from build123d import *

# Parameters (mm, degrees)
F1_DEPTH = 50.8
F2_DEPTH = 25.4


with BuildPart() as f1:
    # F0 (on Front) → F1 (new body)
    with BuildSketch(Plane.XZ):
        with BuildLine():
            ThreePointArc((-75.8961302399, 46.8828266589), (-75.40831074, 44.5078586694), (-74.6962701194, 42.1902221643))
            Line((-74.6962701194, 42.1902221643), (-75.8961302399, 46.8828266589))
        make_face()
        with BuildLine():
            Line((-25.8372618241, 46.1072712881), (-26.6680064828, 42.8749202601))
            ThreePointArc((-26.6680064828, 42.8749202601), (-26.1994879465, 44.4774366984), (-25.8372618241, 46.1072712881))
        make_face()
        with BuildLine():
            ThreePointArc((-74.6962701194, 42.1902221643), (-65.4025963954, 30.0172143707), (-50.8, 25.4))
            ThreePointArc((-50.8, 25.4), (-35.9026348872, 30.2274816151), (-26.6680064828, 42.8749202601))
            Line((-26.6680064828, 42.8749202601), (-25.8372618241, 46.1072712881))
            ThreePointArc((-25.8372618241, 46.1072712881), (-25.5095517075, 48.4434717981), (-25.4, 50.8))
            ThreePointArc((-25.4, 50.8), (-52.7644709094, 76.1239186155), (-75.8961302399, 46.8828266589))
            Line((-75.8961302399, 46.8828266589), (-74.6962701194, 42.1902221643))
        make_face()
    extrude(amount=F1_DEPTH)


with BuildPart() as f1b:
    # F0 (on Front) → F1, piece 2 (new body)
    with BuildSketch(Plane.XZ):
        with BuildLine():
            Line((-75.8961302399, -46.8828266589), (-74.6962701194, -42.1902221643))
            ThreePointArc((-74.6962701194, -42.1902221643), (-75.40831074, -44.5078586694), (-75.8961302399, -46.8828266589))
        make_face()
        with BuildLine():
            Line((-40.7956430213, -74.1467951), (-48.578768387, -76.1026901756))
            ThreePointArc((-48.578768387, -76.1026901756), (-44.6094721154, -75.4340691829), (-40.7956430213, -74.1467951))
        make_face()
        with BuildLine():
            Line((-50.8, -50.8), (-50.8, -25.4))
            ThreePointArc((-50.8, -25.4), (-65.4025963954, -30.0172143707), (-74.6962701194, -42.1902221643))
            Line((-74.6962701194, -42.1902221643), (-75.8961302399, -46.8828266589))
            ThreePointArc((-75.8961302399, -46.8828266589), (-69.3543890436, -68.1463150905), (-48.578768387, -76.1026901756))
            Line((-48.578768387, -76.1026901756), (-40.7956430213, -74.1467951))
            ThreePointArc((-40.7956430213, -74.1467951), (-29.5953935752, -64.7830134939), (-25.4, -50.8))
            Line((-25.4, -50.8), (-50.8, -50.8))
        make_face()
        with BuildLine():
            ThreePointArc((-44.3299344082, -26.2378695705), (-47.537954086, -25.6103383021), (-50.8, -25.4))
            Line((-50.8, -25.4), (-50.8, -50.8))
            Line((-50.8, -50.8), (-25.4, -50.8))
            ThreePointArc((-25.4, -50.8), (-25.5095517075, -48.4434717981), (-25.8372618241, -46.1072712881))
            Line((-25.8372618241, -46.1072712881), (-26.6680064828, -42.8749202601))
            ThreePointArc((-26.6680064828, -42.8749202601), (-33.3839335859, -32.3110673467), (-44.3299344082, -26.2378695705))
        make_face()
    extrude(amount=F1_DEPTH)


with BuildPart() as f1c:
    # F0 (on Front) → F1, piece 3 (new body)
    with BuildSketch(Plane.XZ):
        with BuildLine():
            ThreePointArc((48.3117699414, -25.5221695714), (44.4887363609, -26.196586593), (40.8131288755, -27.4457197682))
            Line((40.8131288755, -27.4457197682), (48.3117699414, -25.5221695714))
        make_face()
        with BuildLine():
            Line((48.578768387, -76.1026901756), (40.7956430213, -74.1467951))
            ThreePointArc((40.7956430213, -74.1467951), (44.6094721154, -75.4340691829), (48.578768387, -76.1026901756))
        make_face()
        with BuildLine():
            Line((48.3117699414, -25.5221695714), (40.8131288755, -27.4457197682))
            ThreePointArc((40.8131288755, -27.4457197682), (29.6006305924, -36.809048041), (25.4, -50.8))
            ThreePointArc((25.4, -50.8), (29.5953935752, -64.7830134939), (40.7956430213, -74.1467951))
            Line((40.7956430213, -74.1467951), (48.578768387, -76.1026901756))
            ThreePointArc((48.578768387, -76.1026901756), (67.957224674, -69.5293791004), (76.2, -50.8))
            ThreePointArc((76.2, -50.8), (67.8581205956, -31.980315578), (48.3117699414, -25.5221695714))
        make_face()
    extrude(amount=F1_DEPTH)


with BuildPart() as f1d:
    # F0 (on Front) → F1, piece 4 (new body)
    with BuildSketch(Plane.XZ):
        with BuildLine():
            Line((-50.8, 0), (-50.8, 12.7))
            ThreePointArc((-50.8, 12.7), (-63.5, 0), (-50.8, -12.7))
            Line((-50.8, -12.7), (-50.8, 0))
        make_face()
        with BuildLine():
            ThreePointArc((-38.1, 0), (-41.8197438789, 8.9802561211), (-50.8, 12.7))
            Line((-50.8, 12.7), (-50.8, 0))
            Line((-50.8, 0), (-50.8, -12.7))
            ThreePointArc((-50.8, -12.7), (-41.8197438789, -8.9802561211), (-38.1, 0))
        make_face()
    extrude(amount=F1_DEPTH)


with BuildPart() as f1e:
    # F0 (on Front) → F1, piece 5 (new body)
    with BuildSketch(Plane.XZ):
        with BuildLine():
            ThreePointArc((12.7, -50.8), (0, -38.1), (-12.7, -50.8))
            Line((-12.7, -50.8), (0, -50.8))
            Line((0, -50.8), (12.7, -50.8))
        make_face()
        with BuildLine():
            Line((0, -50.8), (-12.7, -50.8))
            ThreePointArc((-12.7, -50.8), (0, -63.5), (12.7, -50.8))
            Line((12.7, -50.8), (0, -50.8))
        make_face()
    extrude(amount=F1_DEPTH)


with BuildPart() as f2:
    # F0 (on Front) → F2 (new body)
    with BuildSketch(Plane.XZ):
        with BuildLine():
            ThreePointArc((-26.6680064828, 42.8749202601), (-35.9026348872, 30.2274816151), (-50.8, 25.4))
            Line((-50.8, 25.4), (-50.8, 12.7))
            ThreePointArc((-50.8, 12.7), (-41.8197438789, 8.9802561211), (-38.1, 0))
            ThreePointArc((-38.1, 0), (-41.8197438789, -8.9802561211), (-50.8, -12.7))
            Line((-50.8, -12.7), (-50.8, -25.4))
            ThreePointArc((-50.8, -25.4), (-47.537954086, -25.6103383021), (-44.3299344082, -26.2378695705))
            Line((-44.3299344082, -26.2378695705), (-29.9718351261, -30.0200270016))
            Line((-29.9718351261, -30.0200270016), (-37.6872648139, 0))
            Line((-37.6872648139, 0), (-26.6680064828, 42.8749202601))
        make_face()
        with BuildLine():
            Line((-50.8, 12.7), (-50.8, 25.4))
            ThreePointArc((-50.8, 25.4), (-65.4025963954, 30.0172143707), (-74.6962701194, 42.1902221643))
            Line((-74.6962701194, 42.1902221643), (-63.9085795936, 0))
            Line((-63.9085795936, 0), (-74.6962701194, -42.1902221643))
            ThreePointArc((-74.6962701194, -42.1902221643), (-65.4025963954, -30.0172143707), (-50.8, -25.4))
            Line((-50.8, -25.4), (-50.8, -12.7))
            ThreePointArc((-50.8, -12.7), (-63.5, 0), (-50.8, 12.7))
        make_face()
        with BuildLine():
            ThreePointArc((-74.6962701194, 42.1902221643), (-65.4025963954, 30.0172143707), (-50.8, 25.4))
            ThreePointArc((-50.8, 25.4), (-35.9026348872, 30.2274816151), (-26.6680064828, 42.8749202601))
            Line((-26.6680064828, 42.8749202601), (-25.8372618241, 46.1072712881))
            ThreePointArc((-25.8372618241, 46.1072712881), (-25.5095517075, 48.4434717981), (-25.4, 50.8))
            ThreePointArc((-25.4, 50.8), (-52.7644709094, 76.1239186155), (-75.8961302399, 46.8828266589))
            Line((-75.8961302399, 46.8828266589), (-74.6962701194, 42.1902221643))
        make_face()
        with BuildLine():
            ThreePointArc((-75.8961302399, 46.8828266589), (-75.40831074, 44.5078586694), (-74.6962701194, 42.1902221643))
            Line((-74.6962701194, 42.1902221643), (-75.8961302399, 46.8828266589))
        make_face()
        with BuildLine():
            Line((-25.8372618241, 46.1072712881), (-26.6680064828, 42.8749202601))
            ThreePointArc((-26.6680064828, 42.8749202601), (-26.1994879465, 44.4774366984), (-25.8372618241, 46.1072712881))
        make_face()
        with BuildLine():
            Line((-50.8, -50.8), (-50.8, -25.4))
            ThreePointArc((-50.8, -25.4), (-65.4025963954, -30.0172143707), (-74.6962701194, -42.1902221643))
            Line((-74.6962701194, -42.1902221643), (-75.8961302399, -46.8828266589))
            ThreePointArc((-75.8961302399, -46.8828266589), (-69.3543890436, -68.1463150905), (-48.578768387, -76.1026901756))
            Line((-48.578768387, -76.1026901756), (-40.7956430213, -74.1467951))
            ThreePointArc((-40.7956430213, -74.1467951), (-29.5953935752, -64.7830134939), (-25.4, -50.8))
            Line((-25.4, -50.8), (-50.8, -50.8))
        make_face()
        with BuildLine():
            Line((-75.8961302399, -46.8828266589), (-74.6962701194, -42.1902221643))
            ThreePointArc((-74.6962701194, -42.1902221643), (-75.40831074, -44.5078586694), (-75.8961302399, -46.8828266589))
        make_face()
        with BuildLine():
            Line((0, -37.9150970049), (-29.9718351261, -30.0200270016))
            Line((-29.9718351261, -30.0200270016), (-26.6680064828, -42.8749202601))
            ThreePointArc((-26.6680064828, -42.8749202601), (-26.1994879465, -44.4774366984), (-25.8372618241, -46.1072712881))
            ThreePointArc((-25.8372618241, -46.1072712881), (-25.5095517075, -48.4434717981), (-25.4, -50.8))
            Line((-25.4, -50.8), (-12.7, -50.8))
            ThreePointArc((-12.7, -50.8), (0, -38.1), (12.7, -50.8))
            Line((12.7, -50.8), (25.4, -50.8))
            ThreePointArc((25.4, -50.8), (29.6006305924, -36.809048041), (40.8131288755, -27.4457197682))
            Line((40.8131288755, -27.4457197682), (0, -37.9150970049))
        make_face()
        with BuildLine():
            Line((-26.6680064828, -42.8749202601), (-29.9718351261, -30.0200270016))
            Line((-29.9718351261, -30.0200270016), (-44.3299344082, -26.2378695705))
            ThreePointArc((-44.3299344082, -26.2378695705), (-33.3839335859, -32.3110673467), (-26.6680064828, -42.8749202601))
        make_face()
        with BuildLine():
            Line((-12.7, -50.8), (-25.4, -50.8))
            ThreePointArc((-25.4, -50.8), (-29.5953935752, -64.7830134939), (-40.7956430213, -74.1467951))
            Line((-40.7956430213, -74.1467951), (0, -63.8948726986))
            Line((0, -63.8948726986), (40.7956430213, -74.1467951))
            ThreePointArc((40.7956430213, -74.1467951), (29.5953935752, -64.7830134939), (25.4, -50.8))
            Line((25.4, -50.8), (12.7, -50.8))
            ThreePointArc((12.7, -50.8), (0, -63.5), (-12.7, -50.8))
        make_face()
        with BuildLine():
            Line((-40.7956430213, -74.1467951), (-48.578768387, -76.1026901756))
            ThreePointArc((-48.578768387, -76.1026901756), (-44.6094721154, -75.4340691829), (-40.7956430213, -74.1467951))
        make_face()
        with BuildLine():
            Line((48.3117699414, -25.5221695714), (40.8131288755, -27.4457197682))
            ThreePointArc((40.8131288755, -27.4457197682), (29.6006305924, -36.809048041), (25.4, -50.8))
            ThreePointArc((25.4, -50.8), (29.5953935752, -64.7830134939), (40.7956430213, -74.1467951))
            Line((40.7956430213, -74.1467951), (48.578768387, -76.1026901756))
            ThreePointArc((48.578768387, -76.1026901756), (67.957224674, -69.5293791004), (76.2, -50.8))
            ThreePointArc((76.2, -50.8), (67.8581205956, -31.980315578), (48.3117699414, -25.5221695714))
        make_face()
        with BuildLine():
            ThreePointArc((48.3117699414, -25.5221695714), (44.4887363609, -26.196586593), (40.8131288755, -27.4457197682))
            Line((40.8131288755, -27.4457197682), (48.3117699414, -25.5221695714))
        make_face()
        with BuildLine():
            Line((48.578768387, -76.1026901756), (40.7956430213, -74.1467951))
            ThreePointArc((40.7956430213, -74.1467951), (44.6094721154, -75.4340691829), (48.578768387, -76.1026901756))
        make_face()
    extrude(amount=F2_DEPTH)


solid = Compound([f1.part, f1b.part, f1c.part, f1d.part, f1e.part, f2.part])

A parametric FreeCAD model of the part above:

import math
import FreeCAD as App
import Part
import Sketcher
Q = App.Units.Quantity

doc = App.newDocument("Part")
params = doc.addObject("Spreadsheet::Sheet", "Params")
for row, (alias, value) in enumerate([
    ("sketch1_radius", "1 in"),
    ("pad1_length", "2 in"),
    ("sketch2_radius", "1 in"),
    ("pad2_length", "2 in"),
    ("sketch3_radius", "1 in"),
    ("pad3_length", "2 in"),
    ("sketch4_radius", "0.5 in"),
    ("pad4_length", "2 in"),
    ("sketch5_diameter", "1 in"),
    ("pad5_length", "2 in"),
    ("sketch6_diameter", "1 in"),
    ("sketch6_radius", "1 in"),
    ("pad6_length", "1 in"),
], start=1):
    params.set(f"A{row}", alias)
    params.set(f"B{row}", "=" + value)
    params.setAlias(f"B{row}", alias)

body = doc.addObject("PartDesign::Body", "Body")

# Sketch on XZ plane
sketch1 = body.newObject("Sketcher::SketchObject", "Sketch")
sketch1.AttachmentSupport = (doc.getObject("XZ_Plane"), [""])
sketch1.MapMode = "FlatFace"
sketch1.addGeometry(Part.ArcOfCircle(Part.Circle(App.Vector(-50.8, 50.8, 0), App.Vector(0, 0, 1), 25.4), math.radians(-171.13), math.radians(-160.19)), False)
sketch1.addGeometry(Part.ArcOfCircle(Part.Circle(App.Vector(-50.8, 50.8, 0), App.Vector(0, 0, 1), 25.4), math.radians(-160), math.radians(-90)), False)
sketch1.addGeometry(Part.ArcOfCircle(Part.Circle(App.Vector(-50.8, 50.8, 0), App.Vector(0, 0, 1), 25.4), math.radians(-90), math.radians(-18)), False)
sketch1.addGeometry(Part.ArcOfCircle(Part.Circle(App.Vector(-50.8, 50.8, 0), App.Vector(0, 0, 1), 25.4), math.radians(-18.18), math.radians(-10.65)), False)
sketch1.addGeometry(Part.ArcOfCircle(Part.Circle(App.Vector(-50.8, 50.8, 0), App.Vector(0, 0, 1), 25.4), math.radians(-10.65), math.radians(0)), False)
sketch1.addGeometry(Part.ArcOfCircle(Part.Circle(App.Vector(-50.8, 50.8, 0), App.Vector(0, 0, 1), 25.4), math.radians(0), math.radians(189)), False)
sketch1.addConstraint(Sketcher.Constraint("Tangent", 0, 2, 1, 1))
sketch1.addConstraint(Sketcher.Constraint("Tangent", 1, 2, 2, 1))
sketch1.addConstraint(Sketcher.Constraint("Tangent", 2, 2, 3, 1))
sketch1.addConstraint(Sketcher.Constraint("Tangent", 3, 2, 4, 1))
sketch1.addConstraint(Sketcher.Constraint("Tangent", 4, 2, 5, 1))
sketch1.addConstraint(Sketcher.Constraint("Tangent", 5, 2, 0, 1))
sketch1.addConstraint(Sketcher.Constraint("Coincident", 2, 3, 0, 3))
sketch1.addConstraint(Sketcher.Constraint("Equal", 2, 3))
sketch1.addConstraint(Sketcher.Constraint("Horizontal", 5, 3, 4, 2))
sketch1.addConstraint(Sketcher.Constraint("Vertical", 5, 3, 1, 2))
sketch1.addConstraint(Sketcher.Constraint("Radius", 0, Q("1 in")))
sketch1.addConstraint(Sketcher.Constraint("DistanceX", 0, 3, -1, 1, Q("2 in")))
sketch1.addConstraint(Sketcher.Constraint("DistanceY", -1, 1, 0, 3, Q("2 in")))
sketch1.addConstraint(Sketcher.Constraint("DistanceX", 0, 2, -1, 1, Q("74.69627 mm")))
sketch1.addConstraint(Sketcher.Constraint("DistanceY", -1, 1, 2, 2, Q("42.87492 mm")))
sketch1.addConstraint(Sketcher.Constraint("DistanceX", 3, 2, -1, 1, Q("25.837262 mm")))
sketch1.addConstraint(Sketcher.Constraint("DistanceX", 5, 2, -1, 1, Q("75.89613 mm")))
sketch1.setExpression("Constraints[10]", "Params.sketch1_radius")
pad1 = body.newObject("PartDesign::Pad", "Pad")
pad1.Profile = sketch1
pad1.setExpression("Length", "Params.pad1_length")
body2 = doc.addObject("PartDesign::Body", "Body001")

# Sketch on XZ plane
sketch2 = body2.newObject("Sketcher::SketchObject", "Sketch001")
sketch2.AttachmentSupport = (doc.getObject("XZ_Plane001"), [""])
sketch2.MapMode = "FlatFace"
sketch2.addGeometry(Part.ArcOfCircle(Part.Circle(App.Vector(-50.8, -50.8, 0), App.Vector(0, 0, 1), 25.4), math.radians(160.19), math.radians(171.13)), False)
sketch2.addGeometry(Part.ArcOfCircle(Part.Circle(App.Vector(-50.8, -50.8, 0), App.Vector(0, 0, 1), 25.4), math.radians(171), math.radians(275)), False)
sketch2.addGeometry(Part.ArcOfCircle(Part.Circle(App.Vector(-50.8, -50.8, 0), App.Vector(0, 0, 1), 25.4), math.radians(-84.98), math.radians(-66.8)), False)
sketch2.addGeometry(Part.ArcOfCircle(Part.Circle(App.Vector(-50.8, -50.8, 0), App.Vector(0, 0, 1), 25.4), math.radians(-67), math.radians(0)), False)
sketch2.addGeometry(Part.ArcOfCircle(Part.Circle(App.Vector(-50.8, -50.8, 0), App.Vector(0, 0, 1), 25.4), math.radians(0), math.radians(10.65)), False)
sketch2.addGeometry(Part.LineSegment(App.Vector(-25.8, -46.1, 0), App.Vector(-26.7, -42.9, 0)), False)
sketch2.addGeometry(Part.ArcOfCircle(Part.Circle(App.Vector(-50.8, -50.8, 0), App.Vector(0, 0, 1), 25.4), math.radians(18), math.radians(75)), False)
sketch2.addGeometry(Part.ArcOfCircle(Part.Circle(App.Vector(-50.8, -50.8, 0), App.Vector(0, 0, 1), 25.4), math.radians(75.24), math.radians(90)), False)
sketch2.addGeometry(Part.ArcOfCircle(Part.Circle(App.Vector(-50.8, -50.8, 0), App.Vector(0, 0, 1), 25.4), math.radians(90), math.radians(160)), False)
sketch2.addConstraint(Sketcher.Constraint("Tangent", 0, 2, 1, 1))
sketch2.addConstraint(Sketcher.Constraint("Tangent", 1, 2, 2, 1))
sketch2.addConstraint(Sketcher.Constraint("Tangent", 2, 2, 3, 1))
sketch2.addConstraint(Sketcher.Constraint("Tangent", 3, 2, 4, 1))
sketch2.addConstraint(Sketcher.Constraint("Coincident", 4, 2, 5, 1))
sketch2.addConstraint(Sketcher.Constraint("Coincident", 5, 2, 6, 1))
sketch2.addConstraint(Sketcher.Constraint("Tangent", 6, 2, 7, 1))
sketch2.addConstraint(Sketcher.Constraint("Tangent", 7, 2, 8, 1))
sketch2.addConstraint(Sketcher.Constraint("Tangent", 8, 2, 0, 1))
sketch2.addConstraint(Sketcher.Constraint("Coincident", 2, 3, 0, 3))
sketch2.addConstraint(Sketcher.Constraint("Coincident", 4, 3, 0, 3))
sketch2.addConstraint(Sketcher.Constraint("Coincident", 6, 3, 0, 3))
sketch2.addConstraint(Sketcher.Constraint("Equal", 4, 6))
sketch2.addConstraint(Sketcher.Constraint("Horizontal", 8, 3, 3, 2))
sketch2.addConstraint(Sketcher.Constraint("Vertical", 8, 3, 7, 2))
sketch2.addConstraint(Sketcher.Constraint("Radius", 0, Q("1 in")))
sketch2.addConstraint(Sketcher.Constraint("DistanceX", 0, 3, -1, 1, Q("2 in")))
sketch2.addConstraint(Sketcher.Constraint("DistanceY", 0, 3, -1, 1, Q("2 in")))
sketch2.addConstraint(Sketcher.Constraint("Distance", 5, Q("3.337399 mm")))
sketch2.addConstraint(Sketcher.Constraint("DistanceX", 0, 2, -1, 1, Q("75.89613 mm")))
sketch2.addConstraint(Sketcher.Constraint("DistanceX", 1, 2, -1, 1, Q("48.578768 mm")))
sketch2.addConstraint(Sketcher.Constraint("DistanceX", 4, 2, -1, 1, Q("25.837262 mm")))
sketch2.addConstraint(Sketcher.Constraint("DistanceY", 6, 2, -1, 1, Q("26.23787 mm")))
sketch2.addConstraint(Sketcher.Constraint("DistanceX", 8, 2, -1, 1, Q("74.69627 mm")))
sketch2.addConstraint(Sketcher.Constraint("DistanceX", 2, 2, -1, 1, Q("40.795643 mm")))
sketch2.setExpression("Constraints[15]", "Params.sketch2_radius")
pad2 = body2.newObject("PartDesign::Pad", "Pad001")
pad2.Profile = sketch2
pad2.setExpression("Length", "Params.pad2_length")
body3 = doc.addObject("PartDesign::Body", "Body002")

# Sketch on XZ plane
sketch3 = body3.newObject("Sketcher::SketchObject", "Sketch002")
sketch3.AttachmentSupport = (doc.getObject("XZ_Plane002"), [""])
sketch3.MapMode = "FlatFace"
sketch3.addGeometry(Part.ArcOfCircle(Part.Circle(App.Vector(51, -51, 0), App.Vector(0, 0, 1), 25), math.radians(95.62), math.radians(113.15)), False)
sketch3.addGeometry(Part.ArcOfCircle(Part.Circle(App.Vector(51, -51, 0), App.Vector(0, 0, 1), 25), math.radians(113), math.radians(247)), False)
sketch3.addGeometry(Part.ArcOfCircle(Part.Circle(App.Vector(51, -51, 0), App.Vector(0, 0, 1), 25), math.radians(-113.2), math.radians(-95.02)), False)
sketch3.addGeometry(Part.ArcOfCircle(Part.Circle(App.Vector(51, -51, 0), App.Vector(0, 0, 1), 25), math.radians(-95), math.radians(0)), False)
sketch3.addGeometry(Part.ArcOfCircle(Part.Circle(App.Vector(51, -51, 0), App.Vector(0, 0, 1), 25), math.radians(0), math.radians(96)), False)
sketch3.addConstraint(Sketcher.Constraint("Tangent", 0, 2, 1, 1))
sketch3.addConstraint(Sketcher.Constraint("Tangent", 1, 2, 2, 1))
sketch3.addConstraint(Sketcher.Constraint("Tangent", 2, 2, 3, 1))
sketch3.addConstraint(Sketcher.Constraint("Tangent", 3, 2, 4, 1))
sketch3.addConstraint(Sketcher.Constraint("Tangent", 4, 2, 0, 1))
sketch3.addConstraint(Sketcher.Constraint("Coincident", 2, 3, 0, 3))
sketch3.addConstraint(Sketcher.Constraint("Horizontal", 4, 3, 3, 2))
sketch3.addConstraint(Sketcher.Constraint("Radius", 0, Q("1 in")))
sketch3.addConstraint(Sketcher.Constraint("DistanceX", -1, 1, 0, 3, Q("2 in")))
sketch3.addConstraint(Sketcher.Constraint("DistanceY", 0, 3, -1, 1, Q("2 in")))
sketch3.addConstraint(Sketcher.Constraint("DistanceX", -1, 1, 0, 2, Q("40.813129 mm")))
sketch3.addConstraint(Sketcher.Constraint("DistanceX", -1, 1, 2, 2, Q("48.578768 mm")))
sketch3.addConstraint(Sketcher.Constraint("DistanceX", -1, 1, 4, 2, Q("48.31177 mm")))
sketch3.addConstraint(Sketcher.Constraint("DistanceX", -1, 1, 1, 2, Q("40.795643 mm")))
sketch3.setExpression("Constraints[7]", "Params.sketch3_radius")
pad3 = body3.newObject("PartDesign::Pad", "Pad002")
pad3.Profile = sketch3
pad3.setExpression("Length", "Params.pad3_length")
body4 = doc.addObject("PartDesign::Body", "Body003")

# Sketch on XZ plane
sketch4 = body4.newObject("Sketcher::SketchObject", "Sketch003")
sketch4.AttachmentSupport = (doc.getObject("XZ_Plane003"), [""])
sketch4.MapMode = "FlatFace"
sketch4.addGeometry(Part.ArcOfCircle(Part.Circle(App.Vector(-51, 0, 0), App.Vector(0, 0, 1), 13), math.radians(90), math.radians(270)), False)
sketch4.addGeometry(Part.ArcOfCircle(Part.Circle(App.Vector(-51, 0, 0), App.Vector(0, 0, 1), 13), math.radians(-90), math.radians(0)), False)
sketch4.addGeometry(Part.ArcOfCircle(Part.Circle(App.Vector(-51, 0, 0), App.Vector(0, 0, 1), 13), math.radians(0), math.radians(90)), False)
sketch4.addConstraint(Sketcher.Constraint("Tangent", 0, 2, 1, 1))
sketch4.addConstraint(Sketcher.Constraint("Tangent", 1, 2, 2, 1))
sketch4.addConstraint(Sketcher.Constraint("Tangent", 2, 2, 0, 1))
sketch4.addConstraint(Sketcher.Constraint("Symmetric", 0, 2, 2, 2, -1))
sketch4.addConstraint(Sketcher.Constraint("PointOnObject", 1, 2, -1))
sketch4.addConstraint(Sketcher.Constraint("Vertical", 2, 3, 0, 2))
sketch4.addConstraint(Sketcher.Constraint("Radius", 0, Q("0.5 in")))
sketch4.addConstraint(Sketcher.Constraint("DistanceX", 0, 3, -1, 1, Q("2 in")))
sketch4.setExpression("Constraints[6]", "Params.sketch4_radius")
pad4 = body4.newObject("PartDesign::Pad", "Pad003")
pad4.Profile = sketch4
pad4.setExpression("Length", "Params.pad4_length")
body5 = doc.addObject("PartDesign::Body", "Body004")

# Sketch on XZ plane
sketch5 = body5.newObject("Sketcher::SketchObject", "Sketch004")
sketch5.AttachmentSupport = (doc.getObject("XZ_Plane004"), [""])
sketch5.MapMode = "FlatFace"
sketch5.addGeometry(Part.Circle(App.Vector(0, -51, 0), App.Vector(0, 0, 1), 13), False)
sketch5.addConstraint(Sketcher.Constraint("PointOnObject", 0, 3, -2))
sketch5.addConstraint(Sketcher.Constraint("Diameter", 0, Q("1 in")))
sketch5.addConstraint(Sketcher.Constraint("DistanceY", 0, 3, -1, 1, Q("2 in")))
sketch5.setExpression("Constraints[1]", "Params.sketch5_diameter")
pad5 = body5.newObject("PartDesign::Pad", "Pad004")
pad5.Profile = sketch5
pad5.setExpression("Length", "Params.pad5_length")
body6 = doc.addObject("PartDesign::Body", "Body005")

# Sketch on XZ plane
sketch6 = body6.newObject("Sketcher::SketchObject", "Sketch005")
sketch6.AttachmentSupport = (doc.getObject("XZ_Plane005"), [""])
sketch6.MapMode = "FlatFace"
sketch6.addGeometry(Part.LineSegment(App.Vector(-40.8, -74.1, 0), App.Vector(0, -63.9, 0)), False)
sketch6.addGeometry(Part.LineSegment(App.Vector(0, -63.9, 0), App.Vector(40.8, -74.1, 0)), False)
sketch6.addGeometry(Part.ArcOfCircle(Part.Circle(App.Vector(50.8, -50.8, 0), App.Vector(0, 0, 1), 25.4), math.radians(-113.2), math.radians(-95.02)), False)
sketch6.addGeometry(Part.ArcOfCircle(Part.Circle(App.Vector(50.8, -50.8, 0), App.Vector(0, 0, 1), 25.4), math.radians(-95), math.radians(0)), False)
sketch6.addGeometry(Part.ArcOfCircle(Part.Circle(App.Vector(50.8, -50.8, 0), App.Vector(0, 0, 1), 25.4), math.radians(0), math.radians(96)), False)
sketch6.addGeometry(Part.ArcOfCircle(Part.Circle(App.Vector(50.8, -50.8, 0), App.Vector(0, 0, 1), 25.4), math.radians(95.62), math.radians(113.15)), False)
sketch6.addGeometry(Part.LineSegment(App.Vector(40.8, -27.4, 0), App.Vector(0, -37.9, 0)), False)
sketch6.addGeometry(Part.LineSegment(App.Vector(0, -37.9, 0), App.Vector(-30, -30, 0)), False)
sketch6.addGeometry(Part.LineSegment(App.Vector(-30, -30, 0), App.Vector(-37.7, 0, 0)), False)
sketch6.addGeometry(Part.LineSegment(App.Vector(-37.7, 0, 0), App.Vector(-26.7, 42.9, 0)), False)
sketch6.addGeometry(Part.ArcOfCircle(Part.Circle(App.Vector(-50.8, 50.8, 0), App.Vector(0, 0, 1), 25.4), math.radians(-18.18), math.radians(-10.65)), False)
sketch6.addGeometry(Part.ArcOfCircle(Part.Circle(App.Vector(-50.8, 50.8, 0), App.Vector(0, 0, 1), 25.4), math.radians(-10.65), math.radians(0)), False)
sketch6.addGeometry(Part.ArcOfCircle(Part.Circle(App.Vector(-50.8, 50.8, 0), App.Vector(0, 0, 1), 25.4), math.radians(0), math.radians(189)), False)
sketch6.addGeometry(Part.ArcOfCircle(Part.Circle(App.Vector(-50.8, 50.8, 0), App.Vector(0, 0, 1), 25.4), math.radians(-171.13), math.radians(-160.19)), False)
sketch6.addGeometry(Part.LineSegment(App.Vector(-74.7, 42.2, 0), App.Vector(-63.9, 0, 0)), False)
sketch6.addGeometry(Part.LineSegment(App.Vector(-63.9, 0, 0), App.Vector(-74.7, -42.2, 0)), False)
sketch6.addGeometry(Part.ArcOfCircle(Part.Circle(App.Vector(-50.8, -50.8, 0), App.Vector(0, 0, 1), 25.4), math.radians(160.19), math.radians(171.13)), False)
sketch6.addGeometry(Part.ArcOfCircle(Part.Circle(App.Vector(-50.8, -50.8, 0), App.Vector(0, 0, 1), 25.4), math.radians(171), math.radians(275)), False)
sketch6.addGeometry(Part.ArcOfCircle(Part.Circle(App.Vector(-50.8, -50.8, 0), App.Vector(0, 0, 1), 25.4), math.radians(-84.98), math.radians(-66.8)), False)
sketch6.addGeometry(Part.Circle(App.Vector(0, -50.8, 0), App.Vector(0, 0, 1), 12.7), False)
sketch6.addGeometry(Part.ArcOfCircle(Part.Circle(App.Vector(-50.8, -50.8, 0), App.Vector(0, 0, 1), 25.4), math.radians(0), math.radians(10.65)), False)
sketch6.addGeometry(Part.LineSegment(App.Vector(-25.4, -50.8, 0), App.Vector(-50.8, -50.8, 0)), False)
sketch6.addGeometry(Part.LineSegment(App.Vector(-50.8, -50.8, 0), App.Vector(-50.8, -25.4, 0)), False)
sketch6.addGeometry(Part.ArcOfCircle(Part.Circle(App.Vector(-50.8, -50.8, 0), App.Vector(0, 0, 1), 25.4), math.radians(75.24), math.radians(90)), False)
sketch6.addGeometry(Part.ArcOfCircle(Part.Circle(App.Vector(-50.8, -50.8, 0), App.Vector(0, 0, 1), 25.4), math.radians(18), math.radians(75)), False)
sketch6.addGeometry(Part.ArcOfCircle(Part.Circle(App.Vector(-50.8, -50.8, 0), App.Vector(0, 0, 1), 25.4), math.radians(10.65), math.radians(18.18)), False)
sketch6.addGeometry(Part.ArcOfCircle(Part.Circle(App.Vector(-50.8, 0, 0), App.Vector(0, 0, 1), 12.7), math.radians(0), math.radians(90)), False)
sketch6.addGeometry(Part.ArcOfCircle(Part.Circle(App.Vector(-50.8, 0, 0), App.Vector(0, 0, 1), 12.7), math.radians(-90), math.radians(0)), False)
sketch6.addGeometry(Part.ArcOfCircle(Part.Circle(App.Vector(-50.8, 0, 0), App.Vector(0, 0, 1), 12.7), math.radians(90), math.radians(270)), False)
sketch6.addConstraint(Sketcher.Constraint("Coincident", 0, 2, 1, 1))
sketch6.addConstraint(Sketcher.Constraint("Coincident", 1, 2, 2, 1))
sketch6.addConstraint(Sketcher.Constraint("Tangent", 2, 2, 3, 1))
sketch6.addConstraint(Sketcher.Constraint("Tangent", 3, 2, 4, 1))
sketch6.addConstraint(Sketcher.Constraint("Tangent", 4, 2, 5, 1))
sketch6.addConstraint(Sketcher.Constraint("Coincident", 5, 2, 6, 1))
sketch6.addConstraint(Sketcher.Constraint("Coincident", 6, 2, 7, 1))
sketch6.addConstraint(Sketcher.Constraint("Coincident", 7, 2, 8, 1))
sketch6.addConstraint(Sketcher.Constraint("Coincident", 8, 2, 9, 1))
sketch6.addConstraint(Sketcher.Constraint("Coincident", 9, 2, 10, 1))
sketch6.addConstraint(Sketcher.Constraint("Tangent", 10, 2, 11, 1))
sketch6.addConstraint(Sketcher.Constraint("Tangent", 11, 2, 12, 1))
sketch6.addConstraint(Sketcher.Constraint("Tangent", 12, 2, 13, 1))
sketch6.addConstraint(Sketcher.Constraint("Coincident", 13, 2, 14, 1))
sketch6.addConstraint(Sketcher.Constraint("Coincident", 14, 2, 15, 1))
sketch6.addConstraint(Sketcher.Constraint("Coincident", 15, 2, 16, 1))
sketch6.addConstraint(Sketcher.Constraint("Tangent", 16, 2, 17, 1))
sketch6.addConstraint(Sketcher.Constraint("Tangent", 17, 2, 18, 1))
sketch6.addConstraint(Sketcher.Constraint("Coincident", 18, 2, 0, 1))
sketch6.addConstraint(Sketcher.Constraint("Coincident", 20, 1, 21, 1))
sketch6.addConstraint(Sketcher.Constraint("Coincident", 21, 2, 22, 1))
sketch6.addConstraint(Sketcher.Constraint("Coincident", 22, 2, 23, 2))
sketch6.addConstraint(Sketcher.Constraint("Tangent", 23, 1, 24, 2))
sketch6.addConstraint(Sketcher.Constraint("Tangent", 24, 1, 25, 2))
sketch6.addConstraint(Sketcher.Constraint("Tangent", 25, 1, 20, 2))
sketch6.addConstraint(Sketcher.Constraint("Tangent", 26, 1, 27, 2))
sketch6.addConstraint(Sketcher.Constraint("Tangent", 27, 1, 28, 2))
sketch6.addConstraint(Sketcher.Constraint("Tangent", 28, 1, 26, 2))
sketch6.addConstraint(Sketcher.Constraint("Horizontal", 21))
sketch6.addConstraint(Sketcher.Constraint("Vertical", 22))
sketch6.addConstraint(Sketcher.Constraint("Coincident", 4, 3, 2, 3))
sketch6.addConstraint(Sketcher.Constraint("Coincident", 12, 3, 10, 3))
sketch6.addConstraint(Sketcher.Constraint("Coincident", 18, 3, 16, 3))
sketch6.addConstraint(Sketcher.Constraint("Coincident", 20, 3, 16, 3))
sketch6.addConstraint(Sketcher.Constraint("Coincident", 23, 3, 16, 3))
sketch6.addConstraint(Sketcher.Constraint("Coincident", 21, 2, 16, 3))
sketch6.addConstraint(Sketcher.Constraint("Equal", 4, 5))
sketch6.addConstraint(Sketcher.Constraint("Equal", 5, 10))
sketch6.addConstraint(Sketcher.Constraint("Equal", 12, 13))
sketch6.addConstraint(Sketcher.Constraint("Equal", 13, 16))
sketch6.addConstraint(Sketcher.Constraint("Equal", 18, 20))
sketch6.addConstraint(Sketcher.Constraint("Equal", 20, 23))
sketch6.addConstraint(Sketcher.Constraint("Equal", 19, 26))
sketch6.addConstraint(Sketcher.Constraint("Symmetric", 2, 3, 10, 3, -1, 1))
sketch6.addConstraint(Sketcher.Constraint("Symmetric", 2, 3, 16, 3, -2))
sketch6.addConstraint(Sketcher.Constraint("Symmetric", 27, 1, 28, 1, -1))
sketch6.addConstraint(Sketcher.Constraint("PointOnObject", 19, 3, -2))
sketch6.addConstraint(Sketcher.Constraint("PointOnObject", 0, 2, -2))
sketch6.addConstraint(Sketcher.Constraint("PointOnObject", 6, 2, -2))
sketch6.addConstraint(Sketcher.Constraint("PointOnObject", 8, 2, -1))
sketch6.addConstraint(Sketcher.Constraint("PointOnObject", 14, 2, -1))
sketch6.addConstraint(Sketcher.Constraint("PointOnObject", 26, 1, -1))
sketch6.addConstraint(Sketcher.Constraint("Horizontal", 18, 3, 19, 3))
sketch6.addConstraint(Sketcher.Constraint("Horizontal", 25, 3, 3, 2))
sketch6.addConstraint(Sketcher.Constraint("Horizontal", 13, 3, 11, 2))
sketch6.addConstraint(Sketcher.Constraint("Horizontal", 2, 2, 17, 2))
sketch6.addConstraint(Sketcher.Constraint("Horizontal", 1, 2, 18, 2))
sketch6.addConstraint(Sketcher.Constraint("Vertical", 25, 3, 26, 3))
sketch6.addConstraint(Sketcher.Constraint("Vertical", 13, 2, 15, 2))
sketch6.addConstraint(Sketcher.Constraint("Vertical", 12, 2, 16, 2))
sketch6.addConstraint(Sketcher.Constraint("Vertical", 9, 2, 24, 1))
sketch6.addConstraint(Sketcher.Constraint("Vertical", 10, 2, 25, 1))
sketch6.addConstraint(Sketcher.Constraint("Vertical", 22, 2, 27, 1))
sketch6.addConstraint(Sketcher.Constraint("Diameter", 19, Q("1 in")))
sketch6.addConstraint(Sketcher.Constraint("Radius", 2, Q("1 in")))
sketch6.addConstraint(Sketcher.Constraint("DistanceX", -1, 1, 2, 3, Q("2 in")))
sketch6.addConstraint(Sketcher.Constraint("DistanceY", 2, 3, -1, 1, Q("2 in")))
sketch6.addConstraint(Sketcher.Constraint("DistanceX", 23, 1, 7, 2, Q("14.358099 mm")))
sketch6.addConstraint(Sketcher.Constraint("Distance", 6, Q("42.134539 mm")))
sketch6.addConstraint(Sketcher.Constraint("Distance", 7, Q("30.994242 mm")))
sketch6.addConstraint(Sketcher.Constraint("Distance", 14, Q("43.54755 mm")))
sketch6.addConstraint(Sketcher.Constraint("DistanceX", -1, 1, 2, 2, Q("48.578768 mm")))
sketch6.addConstraint(Sketcher.Constraint("DistanceX", -1, 1, 4, 2, Q("48.31177 mm")))
sketch6.addConstraint(Sketcher.Constraint("DistanceX", -1, 1, 5, 2, Q("40.813129 mm")))
sketch6.addConstraint(Sketcher.Constraint("DistanceY", -1, 1, 9, 2, Q("42.87492 mm")))
sketch6.addConstraint(Sketcher.Constraint("DistanceX", 10, 2, -1, 1, Q("25.837262 mm")))
sketch6.addConstraint(Sketcher.Constraint("DistanceX", 12, 2, -1, 1, Q("75.89613 mm")))
sketch6.addConstraint(Sketcher.Constraint("DistanceX", 13, 2, -1, 1, Q("74.69627 mm")))
sketch6.addConstraint(Sketcher.Constraint("DistanceY", 23, 1, -1, 1, Q("26.23787 mm")))
sketch6.addConstraint(Sketcher.Constraint("DistanceX", 8, 2, 7, 2, Q("7.71543 mm")))
sketch6.addConstraint(Sketcher.Constraint("Distance", 0, Q("42.064075 mm")))
sketch6.addConstraint(Sketcher.Constraint("DistanceY", 0, 2, -1, 1, Q("63.894873 mm")))
sketch6.setExpression("Constraints[63]", "Params.sketch6_diameter")
sketch6.setExpression("Constraints[64]", "Params.sketch6_radius")
pad6 = body6.newObject("PartDesign::Pad", "Pad005")
pad6.Profile = sketch6
pad6.setExpression("Length", "Params.pad6_length")

doc.recompute()
